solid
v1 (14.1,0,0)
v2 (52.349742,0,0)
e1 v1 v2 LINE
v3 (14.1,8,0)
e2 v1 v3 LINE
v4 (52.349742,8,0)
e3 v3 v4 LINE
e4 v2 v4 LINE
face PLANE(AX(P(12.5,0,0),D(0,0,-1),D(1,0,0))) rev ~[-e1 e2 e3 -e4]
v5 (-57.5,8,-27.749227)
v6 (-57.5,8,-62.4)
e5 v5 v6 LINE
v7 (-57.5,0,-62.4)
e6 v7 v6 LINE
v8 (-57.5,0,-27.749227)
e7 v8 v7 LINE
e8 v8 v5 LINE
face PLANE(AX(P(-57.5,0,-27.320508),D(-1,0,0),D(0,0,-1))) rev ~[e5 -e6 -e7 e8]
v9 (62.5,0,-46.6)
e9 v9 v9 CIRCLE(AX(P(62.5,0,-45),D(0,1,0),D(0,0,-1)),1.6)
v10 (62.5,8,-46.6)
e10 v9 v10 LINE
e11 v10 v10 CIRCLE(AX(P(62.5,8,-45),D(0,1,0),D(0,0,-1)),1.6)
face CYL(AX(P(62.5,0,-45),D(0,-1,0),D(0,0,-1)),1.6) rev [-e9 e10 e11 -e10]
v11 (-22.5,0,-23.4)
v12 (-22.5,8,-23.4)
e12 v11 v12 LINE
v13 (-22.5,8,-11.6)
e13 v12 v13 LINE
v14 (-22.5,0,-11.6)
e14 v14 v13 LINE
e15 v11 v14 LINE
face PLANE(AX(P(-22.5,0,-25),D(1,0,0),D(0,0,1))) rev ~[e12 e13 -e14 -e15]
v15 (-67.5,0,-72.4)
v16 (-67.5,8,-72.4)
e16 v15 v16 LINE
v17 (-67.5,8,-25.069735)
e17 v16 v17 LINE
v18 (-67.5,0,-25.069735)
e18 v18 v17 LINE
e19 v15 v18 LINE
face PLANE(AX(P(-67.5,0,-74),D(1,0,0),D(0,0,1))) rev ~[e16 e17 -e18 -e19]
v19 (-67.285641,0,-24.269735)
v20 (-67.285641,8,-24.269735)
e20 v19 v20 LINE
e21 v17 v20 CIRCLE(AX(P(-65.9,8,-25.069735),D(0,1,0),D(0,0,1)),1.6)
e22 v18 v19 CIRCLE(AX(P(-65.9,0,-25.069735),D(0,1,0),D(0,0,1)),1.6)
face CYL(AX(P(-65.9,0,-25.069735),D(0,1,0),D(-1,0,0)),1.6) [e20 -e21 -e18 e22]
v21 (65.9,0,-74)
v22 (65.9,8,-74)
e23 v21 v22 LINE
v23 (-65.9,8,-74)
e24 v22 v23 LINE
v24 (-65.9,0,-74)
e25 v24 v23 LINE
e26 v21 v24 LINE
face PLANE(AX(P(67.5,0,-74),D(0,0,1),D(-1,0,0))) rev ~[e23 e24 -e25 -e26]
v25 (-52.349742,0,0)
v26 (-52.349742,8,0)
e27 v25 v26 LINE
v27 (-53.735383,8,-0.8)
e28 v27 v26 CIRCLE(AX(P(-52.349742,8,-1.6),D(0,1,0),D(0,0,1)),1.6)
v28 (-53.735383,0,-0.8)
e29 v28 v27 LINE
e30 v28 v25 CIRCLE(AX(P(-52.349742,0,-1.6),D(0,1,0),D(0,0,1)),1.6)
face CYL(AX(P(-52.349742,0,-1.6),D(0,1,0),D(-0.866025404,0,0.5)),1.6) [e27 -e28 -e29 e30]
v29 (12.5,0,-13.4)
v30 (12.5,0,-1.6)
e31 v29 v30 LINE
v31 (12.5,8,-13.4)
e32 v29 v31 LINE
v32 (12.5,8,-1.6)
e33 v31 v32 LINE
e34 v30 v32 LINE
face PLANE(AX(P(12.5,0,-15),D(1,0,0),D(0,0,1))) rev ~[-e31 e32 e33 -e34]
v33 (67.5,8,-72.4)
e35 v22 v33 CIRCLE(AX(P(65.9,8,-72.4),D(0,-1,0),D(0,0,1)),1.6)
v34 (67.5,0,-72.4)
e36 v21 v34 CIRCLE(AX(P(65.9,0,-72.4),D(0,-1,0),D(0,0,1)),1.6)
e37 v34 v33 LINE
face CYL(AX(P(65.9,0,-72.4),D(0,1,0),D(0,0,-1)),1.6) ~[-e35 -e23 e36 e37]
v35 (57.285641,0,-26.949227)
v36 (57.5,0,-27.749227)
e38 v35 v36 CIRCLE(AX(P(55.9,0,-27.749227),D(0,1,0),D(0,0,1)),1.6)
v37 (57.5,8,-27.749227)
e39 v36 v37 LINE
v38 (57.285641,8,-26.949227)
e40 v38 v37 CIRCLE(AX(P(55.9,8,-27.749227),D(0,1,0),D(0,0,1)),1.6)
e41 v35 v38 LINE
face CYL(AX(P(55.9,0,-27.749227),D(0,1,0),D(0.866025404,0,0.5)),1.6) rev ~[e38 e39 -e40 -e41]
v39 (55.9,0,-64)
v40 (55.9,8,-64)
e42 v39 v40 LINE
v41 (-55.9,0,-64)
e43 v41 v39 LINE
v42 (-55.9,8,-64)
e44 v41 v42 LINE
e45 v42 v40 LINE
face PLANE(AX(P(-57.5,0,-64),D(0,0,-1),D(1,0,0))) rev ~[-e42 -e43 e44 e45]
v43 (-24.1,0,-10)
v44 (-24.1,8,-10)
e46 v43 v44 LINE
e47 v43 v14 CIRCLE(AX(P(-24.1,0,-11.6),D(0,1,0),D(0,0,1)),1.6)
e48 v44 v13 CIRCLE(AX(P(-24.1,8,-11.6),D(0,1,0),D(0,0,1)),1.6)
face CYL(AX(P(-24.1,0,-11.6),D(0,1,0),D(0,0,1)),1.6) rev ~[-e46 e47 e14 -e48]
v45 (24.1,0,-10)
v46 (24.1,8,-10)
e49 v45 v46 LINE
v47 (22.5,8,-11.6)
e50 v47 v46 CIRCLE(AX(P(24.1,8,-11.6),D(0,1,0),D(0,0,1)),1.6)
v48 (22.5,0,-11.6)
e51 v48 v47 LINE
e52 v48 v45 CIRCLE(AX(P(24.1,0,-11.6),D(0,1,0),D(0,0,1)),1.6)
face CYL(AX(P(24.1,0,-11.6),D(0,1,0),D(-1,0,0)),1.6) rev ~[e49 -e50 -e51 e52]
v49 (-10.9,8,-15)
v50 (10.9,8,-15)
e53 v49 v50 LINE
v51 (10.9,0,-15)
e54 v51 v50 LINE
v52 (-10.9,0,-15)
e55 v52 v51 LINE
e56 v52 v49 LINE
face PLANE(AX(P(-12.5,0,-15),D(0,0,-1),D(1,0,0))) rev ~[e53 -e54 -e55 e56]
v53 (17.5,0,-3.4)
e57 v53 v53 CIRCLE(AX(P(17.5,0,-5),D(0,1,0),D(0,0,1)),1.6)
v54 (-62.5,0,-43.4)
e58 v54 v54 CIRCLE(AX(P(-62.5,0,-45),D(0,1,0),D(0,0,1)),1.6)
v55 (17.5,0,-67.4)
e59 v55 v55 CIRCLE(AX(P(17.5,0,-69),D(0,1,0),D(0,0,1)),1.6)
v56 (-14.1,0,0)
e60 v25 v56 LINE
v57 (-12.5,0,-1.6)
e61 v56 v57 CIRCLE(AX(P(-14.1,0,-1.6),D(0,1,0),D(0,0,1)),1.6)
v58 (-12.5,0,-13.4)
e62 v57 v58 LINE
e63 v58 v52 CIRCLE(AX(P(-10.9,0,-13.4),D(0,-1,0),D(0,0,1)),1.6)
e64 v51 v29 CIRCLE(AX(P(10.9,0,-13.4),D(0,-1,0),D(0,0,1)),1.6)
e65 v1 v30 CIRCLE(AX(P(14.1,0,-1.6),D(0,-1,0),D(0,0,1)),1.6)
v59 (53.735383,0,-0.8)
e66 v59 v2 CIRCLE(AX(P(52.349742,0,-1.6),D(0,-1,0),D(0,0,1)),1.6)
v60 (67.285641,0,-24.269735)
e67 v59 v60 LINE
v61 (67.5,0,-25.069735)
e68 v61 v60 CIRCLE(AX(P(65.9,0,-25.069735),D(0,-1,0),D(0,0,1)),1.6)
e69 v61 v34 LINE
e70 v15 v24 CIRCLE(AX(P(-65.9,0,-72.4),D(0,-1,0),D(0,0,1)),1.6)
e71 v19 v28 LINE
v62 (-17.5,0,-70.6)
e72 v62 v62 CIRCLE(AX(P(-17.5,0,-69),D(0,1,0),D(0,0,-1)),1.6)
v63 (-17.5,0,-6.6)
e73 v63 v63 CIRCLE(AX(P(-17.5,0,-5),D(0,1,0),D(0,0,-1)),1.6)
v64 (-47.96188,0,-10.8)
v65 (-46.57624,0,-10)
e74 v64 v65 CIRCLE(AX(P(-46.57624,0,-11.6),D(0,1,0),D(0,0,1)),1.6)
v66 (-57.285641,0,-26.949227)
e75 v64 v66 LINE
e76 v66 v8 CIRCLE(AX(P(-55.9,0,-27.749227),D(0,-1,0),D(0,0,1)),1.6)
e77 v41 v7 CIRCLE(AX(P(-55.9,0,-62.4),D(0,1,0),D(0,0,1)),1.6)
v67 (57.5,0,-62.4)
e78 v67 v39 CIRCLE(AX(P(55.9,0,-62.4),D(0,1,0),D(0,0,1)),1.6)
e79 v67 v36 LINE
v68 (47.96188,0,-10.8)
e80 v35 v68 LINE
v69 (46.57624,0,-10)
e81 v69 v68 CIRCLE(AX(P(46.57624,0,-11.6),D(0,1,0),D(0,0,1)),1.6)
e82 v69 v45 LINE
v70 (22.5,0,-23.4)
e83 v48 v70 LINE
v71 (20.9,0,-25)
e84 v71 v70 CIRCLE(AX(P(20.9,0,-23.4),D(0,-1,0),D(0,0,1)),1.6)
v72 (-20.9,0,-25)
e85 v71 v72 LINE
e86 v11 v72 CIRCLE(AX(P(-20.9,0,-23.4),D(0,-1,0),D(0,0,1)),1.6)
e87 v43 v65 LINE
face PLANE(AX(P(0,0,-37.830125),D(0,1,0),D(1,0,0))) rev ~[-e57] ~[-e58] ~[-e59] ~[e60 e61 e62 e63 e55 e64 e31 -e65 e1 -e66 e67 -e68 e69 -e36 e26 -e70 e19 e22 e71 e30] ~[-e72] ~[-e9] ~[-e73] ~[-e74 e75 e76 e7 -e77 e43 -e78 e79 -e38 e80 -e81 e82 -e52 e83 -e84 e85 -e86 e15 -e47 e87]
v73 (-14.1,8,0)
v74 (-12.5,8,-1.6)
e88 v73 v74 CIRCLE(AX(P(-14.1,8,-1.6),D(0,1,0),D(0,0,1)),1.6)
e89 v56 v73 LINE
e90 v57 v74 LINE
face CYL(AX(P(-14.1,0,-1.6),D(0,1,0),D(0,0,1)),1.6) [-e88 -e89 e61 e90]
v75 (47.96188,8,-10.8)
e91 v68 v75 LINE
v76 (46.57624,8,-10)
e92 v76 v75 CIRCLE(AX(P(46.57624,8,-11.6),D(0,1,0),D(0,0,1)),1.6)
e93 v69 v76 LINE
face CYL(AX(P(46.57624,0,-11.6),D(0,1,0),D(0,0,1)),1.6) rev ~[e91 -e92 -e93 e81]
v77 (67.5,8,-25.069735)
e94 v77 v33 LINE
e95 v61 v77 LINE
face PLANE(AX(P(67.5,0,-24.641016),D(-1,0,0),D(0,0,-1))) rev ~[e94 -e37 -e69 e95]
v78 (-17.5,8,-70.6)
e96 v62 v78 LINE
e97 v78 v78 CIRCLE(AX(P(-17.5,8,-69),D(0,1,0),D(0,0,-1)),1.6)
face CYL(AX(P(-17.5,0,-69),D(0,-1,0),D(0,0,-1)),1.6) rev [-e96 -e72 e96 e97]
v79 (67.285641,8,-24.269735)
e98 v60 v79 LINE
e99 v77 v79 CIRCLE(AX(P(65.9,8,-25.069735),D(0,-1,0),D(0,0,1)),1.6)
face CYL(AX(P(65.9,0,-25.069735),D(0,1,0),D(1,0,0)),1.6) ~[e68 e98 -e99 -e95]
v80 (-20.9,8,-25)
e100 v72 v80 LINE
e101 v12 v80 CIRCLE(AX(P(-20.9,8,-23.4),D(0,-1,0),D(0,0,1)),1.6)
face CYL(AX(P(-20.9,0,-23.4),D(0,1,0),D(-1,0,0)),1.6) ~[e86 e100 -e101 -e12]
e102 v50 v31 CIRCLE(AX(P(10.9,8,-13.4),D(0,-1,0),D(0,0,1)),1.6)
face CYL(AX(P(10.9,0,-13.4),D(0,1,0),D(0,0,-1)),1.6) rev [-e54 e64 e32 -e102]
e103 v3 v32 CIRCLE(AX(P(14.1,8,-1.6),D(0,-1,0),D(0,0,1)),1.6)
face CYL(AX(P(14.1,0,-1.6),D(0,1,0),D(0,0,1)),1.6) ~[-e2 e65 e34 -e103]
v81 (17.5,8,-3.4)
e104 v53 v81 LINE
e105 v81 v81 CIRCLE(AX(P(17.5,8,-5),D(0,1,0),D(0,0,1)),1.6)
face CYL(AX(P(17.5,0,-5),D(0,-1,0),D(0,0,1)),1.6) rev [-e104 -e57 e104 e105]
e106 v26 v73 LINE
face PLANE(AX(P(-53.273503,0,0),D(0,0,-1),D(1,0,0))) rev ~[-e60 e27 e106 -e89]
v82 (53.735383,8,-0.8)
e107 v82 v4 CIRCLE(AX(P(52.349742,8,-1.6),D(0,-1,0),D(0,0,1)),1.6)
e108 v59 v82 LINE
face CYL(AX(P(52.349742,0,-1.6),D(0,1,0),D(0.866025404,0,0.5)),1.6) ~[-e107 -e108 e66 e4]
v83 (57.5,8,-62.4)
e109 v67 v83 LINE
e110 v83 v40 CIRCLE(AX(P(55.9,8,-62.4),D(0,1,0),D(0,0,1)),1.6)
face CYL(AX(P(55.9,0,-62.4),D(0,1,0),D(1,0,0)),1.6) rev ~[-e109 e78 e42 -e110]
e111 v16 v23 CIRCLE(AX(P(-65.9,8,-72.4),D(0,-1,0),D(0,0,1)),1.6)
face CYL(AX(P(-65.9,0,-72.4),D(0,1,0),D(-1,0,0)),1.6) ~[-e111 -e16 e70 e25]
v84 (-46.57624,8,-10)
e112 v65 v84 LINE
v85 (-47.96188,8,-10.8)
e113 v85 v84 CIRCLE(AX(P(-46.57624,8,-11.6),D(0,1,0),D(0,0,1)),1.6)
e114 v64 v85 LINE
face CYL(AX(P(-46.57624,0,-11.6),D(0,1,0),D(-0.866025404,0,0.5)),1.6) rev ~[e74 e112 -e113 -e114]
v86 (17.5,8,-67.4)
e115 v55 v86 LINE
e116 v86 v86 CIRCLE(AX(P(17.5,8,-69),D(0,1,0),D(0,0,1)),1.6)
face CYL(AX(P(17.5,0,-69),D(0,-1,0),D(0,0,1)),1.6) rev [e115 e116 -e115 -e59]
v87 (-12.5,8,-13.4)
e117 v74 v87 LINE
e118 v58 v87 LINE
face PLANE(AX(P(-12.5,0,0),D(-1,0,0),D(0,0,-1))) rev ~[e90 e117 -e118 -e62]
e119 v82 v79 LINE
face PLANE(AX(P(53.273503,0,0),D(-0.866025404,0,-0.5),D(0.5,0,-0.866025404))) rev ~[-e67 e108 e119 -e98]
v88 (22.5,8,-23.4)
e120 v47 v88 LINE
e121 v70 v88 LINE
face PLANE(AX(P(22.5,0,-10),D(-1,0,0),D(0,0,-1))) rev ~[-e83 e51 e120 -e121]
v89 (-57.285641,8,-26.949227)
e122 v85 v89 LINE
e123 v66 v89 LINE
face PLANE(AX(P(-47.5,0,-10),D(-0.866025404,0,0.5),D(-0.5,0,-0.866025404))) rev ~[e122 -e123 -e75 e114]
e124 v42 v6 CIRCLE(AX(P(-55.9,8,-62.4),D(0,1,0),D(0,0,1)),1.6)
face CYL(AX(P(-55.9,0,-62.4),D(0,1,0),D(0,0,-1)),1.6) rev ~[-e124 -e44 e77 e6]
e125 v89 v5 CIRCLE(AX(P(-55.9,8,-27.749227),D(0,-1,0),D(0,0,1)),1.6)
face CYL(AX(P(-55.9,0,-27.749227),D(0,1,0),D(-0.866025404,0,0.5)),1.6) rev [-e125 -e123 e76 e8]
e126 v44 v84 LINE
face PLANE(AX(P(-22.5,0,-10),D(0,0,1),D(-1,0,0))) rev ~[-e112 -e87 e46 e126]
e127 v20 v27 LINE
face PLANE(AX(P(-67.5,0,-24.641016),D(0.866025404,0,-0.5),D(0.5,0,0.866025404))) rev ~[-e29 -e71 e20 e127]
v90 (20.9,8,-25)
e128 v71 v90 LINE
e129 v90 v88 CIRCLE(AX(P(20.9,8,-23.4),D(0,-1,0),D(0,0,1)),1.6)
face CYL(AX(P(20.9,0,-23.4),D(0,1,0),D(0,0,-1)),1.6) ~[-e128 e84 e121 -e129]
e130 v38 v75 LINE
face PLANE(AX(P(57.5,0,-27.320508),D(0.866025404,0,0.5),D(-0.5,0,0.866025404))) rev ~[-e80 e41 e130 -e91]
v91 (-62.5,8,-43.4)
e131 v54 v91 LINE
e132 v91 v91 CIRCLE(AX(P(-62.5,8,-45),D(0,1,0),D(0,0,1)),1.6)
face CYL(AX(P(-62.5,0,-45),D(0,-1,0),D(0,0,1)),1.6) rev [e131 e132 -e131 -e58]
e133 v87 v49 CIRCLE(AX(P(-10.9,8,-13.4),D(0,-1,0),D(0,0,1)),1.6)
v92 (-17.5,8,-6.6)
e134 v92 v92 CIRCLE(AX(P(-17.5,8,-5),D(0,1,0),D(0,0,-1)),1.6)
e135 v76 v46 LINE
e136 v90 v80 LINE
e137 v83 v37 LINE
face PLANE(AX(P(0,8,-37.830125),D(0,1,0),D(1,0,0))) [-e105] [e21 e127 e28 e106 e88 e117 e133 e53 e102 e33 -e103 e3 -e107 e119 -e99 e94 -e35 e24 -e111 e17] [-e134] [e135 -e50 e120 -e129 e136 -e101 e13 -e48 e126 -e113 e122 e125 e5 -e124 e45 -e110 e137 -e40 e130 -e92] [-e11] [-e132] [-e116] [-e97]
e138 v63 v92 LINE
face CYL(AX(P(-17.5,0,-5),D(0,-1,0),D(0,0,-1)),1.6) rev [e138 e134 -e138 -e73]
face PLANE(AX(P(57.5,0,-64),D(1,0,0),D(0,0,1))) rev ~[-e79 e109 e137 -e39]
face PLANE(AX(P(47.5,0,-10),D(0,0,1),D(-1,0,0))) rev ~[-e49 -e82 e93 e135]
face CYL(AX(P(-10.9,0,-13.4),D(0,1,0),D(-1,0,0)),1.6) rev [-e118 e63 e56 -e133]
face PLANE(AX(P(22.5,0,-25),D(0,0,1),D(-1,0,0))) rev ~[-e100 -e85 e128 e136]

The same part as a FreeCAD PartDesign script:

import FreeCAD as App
import Part
import Sketcher

V = App.Vector
Q = App.Units.Quantity


def edges_at(feature, points):
    """Names of the edges that pass closest to the given points."""
    edges = feature.Shape.Edges
    near = lambda p: min(range(len(edges)), key=lambda i: edges[i].distToShape(Part.Vertex(*p))[0])
    return sorted({f"Edge{near(p) + 1}" for p in points})


def add_polygon(sketch, points):
    """Adds a closed chain of lines whose ends are joined by coincident constraints."""
    first, n = sketch.GeometryCount, len(points)
    for a, b in zip(points, points[1:] + points[:1]):
        sketch.addGeometry(Part.LineSegment(App.Vector(*a, 0), App.Vector(*b, 0)), False)
    for i in range(n):
        sketch.addConstraint(Sketcher.Constraint("Coincident", first + i, 2, first + (i + 1) % n, 1))

doc = App.newDocument("Part")
body = doc.addObject("PartDesign::Body", "Body")

sketch1 = doc.addObject("Sketcher::SketchObject", "Sketch")
body.addObject(sketch1)
sketch1.AttachmentSupport = (doc.XZ_Plane, [""])
sketch1.MapMode = "FlatFace"
add_polygon(sketch1, [(-67.5, -74), (-67.5, -24.6), (-53.3, 0), (-12.5, 0), (-12.5, -15), (12.5, -15), (12.5, 0), (53.3, 0), (67.5, -24.6), (67.5, -74)])
sketch1.addGeometry(Part.Circle(V(-17.5, -5, 0), V(0, 0, 1), 1.6), False)
sketch1.addGeometry(Part.Circle(V(17.5, -5, 0), V(0, 0, 1), 1.6), False)
sketch1.addGeometry(Part.Circle(V(-62.5, -45, 0), V(0, 0, 1), 1.6), False)
sketch1.addGeometry(Part.Circle(V(-17.5, -69, 0), V(0, 0, 1), 1.6), False)
add_polygon(sketch1, [(-47.5, -10), (-57.5, -27.3), (-57.5, -64), (57.5, -64), (57.5, -27.3), (47.5, -10), (22.5, -10), (22.5, -25), (-22.5, -25), (-22.5, -10)])
sketch1.addGeometry(Part.Circle(V(62.5, -45, 0), V(0, 0, 1), 1.6), False)
sketch1.addGeometry(Part.Circle(V(17.5, -69, 0), V(0, 0, 1), 1.6), False)
sketch1.addConstraint([
    Sketcher.Constraint("Vertical", 0),
    Sketcher.Constraint("Horizontal", 2),
    Sketcher.Constraint("Vertical", 3),
    Sketcher.Constraint("Horizontal", 4),
    Sketcher.Constraint("Vertical", 5),
    Sketcher.Constraint("Horizontal", 6),
    Sketcher.Constraint("Vertical", 8),
    Sketcher.Constraint("Horizontal", 9),
    Sketcher.Constraint("Vertical", 15),
    Sketcher.Constraint("Horizontal", 16),
    Sketcher.Constraint("Vertical", 17),
    Sketcher.Constraint("Horizontal", 19),
    Sketcher.Constraint("Vertical", 20),
    Sketcher.Constraint("Horizontal", 21),
    Sketcher.Constraint("Vertical", 22),
    Sketcher.Constraint("Horizontal", 23),
    Sketcher.Constraint("Equal", 10, 11),
    Sketcher.Constraint("Equal", 11, 12),
    Sketcher.Constraint("Equal", 12, 13),
    Sketcher.Constraint("Equal", 13, 24),
    Sketcher.Constraint("Equal", 24, 25),
    Sketcher.Constraint("Symmetric", 2, 2, 5, 2, -1, 1),
    Sketcher.Constraint("Symmetric", 10, 3, 11, 3, -2),
    Sketcher.Constraint("Symmetric", 12, 3, 24, 3, -2),
    Sketcher.Constraint("Symmetric", 13, 3, 25, 3, -2),
    Sketcher.Constraint("Symmetric", 1, 2, 6, 2, -2),
    Sketcher.Constraint("Symmetric", 0, 2, 7, 2, -2),
    Sketcher.Constraint("Symmetric", 14, 2, 17, 2, -2),
    Sketcher.Constraint("Symmetric", 19, 2, 22, 2, -2),
    Sketcher.Constraint("Parallel", 1, 14),
    Sketcher.Constraint("Parallel", 7, 18),
    Sketcher.Constraint("Vertical", 10, 3, 13, 3),
    Sketcher.Constraint("Equal", 4, 19),
    Sketcher.Constraint("Equal", 5, 20),
    Sketcher.Constraint("Diameter", 10, Q("3.2 mm")),
    Sketcher.Constraint("DistanceX", 4, 1, 4, 2, Q("25 mm")),
    Sketcher.Constraint("DistanceX", 9, 2, 9, 1, Q("135 mm")),
    Sketcher.Constraint("DistanceX", 16, 1, 16, 2, Q("115 mm")),
    Sketcher.Constraint("DistanceX", 21, 2, 21, 1, Q("45 mm")),
    Sketcher.Constraint("DistanceY", 3, 2, 3, 1, Q("15 mm")),
    Sketcher.Constraint("Angle", 1, Q("60 deg")),
    Sketcher.Constraint("DistanceY", 10, 3, -1, 1, Q("5 mm")),
    Sketcher.Constraint("DistanceY", 12, 3, -1, 1, Q("45 mm")),
    Sketcher.Constraint("DistanceY", 13, 3, -1, 1, Q("69 mm")),
    Sketcher.Constraint("DistanceY", 8, 2, -1, 1, Q("74 mm")),
    Sketcher.Constraint("DistanceY", 15, 2, -1, 1, Q("64 mm")),
    Sketcher.Constraint("DistanceY", 18, 2, -1, 1, Q("10 mm")),
    Sketcher.Constraint("DistanceX", 10, 3, 11, 3, Q("35 mm")),
    Sketcher.Constraint("DistanceX", 12, 3, 10, 3, Q("45 mm")),
    Sketcher.Constraint("DistanceX", 2, 1, 2, 2, Q("40.773503 mm")),
])
pad1 = doc.addObject("PartDesign::Pad", "Pad")
body.addObject(pad1)
pad1.Profile = sketch1
pad1.Length = 8
pad1.Reversed = True
doc.recompute()

fillet = doc.addObject("PartDesign::Fillet", "Fillet")
body.addObject(fillet)
fillet.Base = (pad1, edges_at(pad1, [
    (67.5, 4, -74),
    (67.5, 4, -24.641),
    (53.274, 4, 0),
    (12.5, 4, 0),
    (12.5, 4, -15),
    (-12.5, 4, -15),
    (-12.5, 4, 0),
    (-53.274, 4, 0),
    (-67.5, 4, -24.641),
    (-67.5, 4, -74),
    (57.5, 4, -27.321),
    (57.5, 4, -64),
    (-57.5, 4, -64),
    (-57.5, 4, -27.321),
    (-47.5, 4, -10),
    (-22.5, 4, -10),
    (-22.5, 4, -25),
    (22.5, 4, -25),
    (22.5, 4, -10),
    (47.5, 4, -10),
]))
fillet.Radius = 1.6

doc.recompute()
